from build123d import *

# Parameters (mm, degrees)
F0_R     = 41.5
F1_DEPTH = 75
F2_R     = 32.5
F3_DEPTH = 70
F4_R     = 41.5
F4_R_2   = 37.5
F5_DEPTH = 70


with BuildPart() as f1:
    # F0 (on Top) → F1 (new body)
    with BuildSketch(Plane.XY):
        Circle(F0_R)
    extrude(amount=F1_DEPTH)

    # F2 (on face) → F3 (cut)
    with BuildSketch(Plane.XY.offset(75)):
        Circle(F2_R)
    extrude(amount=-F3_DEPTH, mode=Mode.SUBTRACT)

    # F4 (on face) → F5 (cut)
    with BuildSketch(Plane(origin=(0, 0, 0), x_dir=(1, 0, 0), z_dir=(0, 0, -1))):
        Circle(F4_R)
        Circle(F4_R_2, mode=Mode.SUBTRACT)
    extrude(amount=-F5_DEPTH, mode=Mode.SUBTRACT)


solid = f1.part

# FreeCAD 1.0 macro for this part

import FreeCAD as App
import Part
import Sketcher
from FreeCAD import Vector

doc = App.newDocument("Part")
body = doc.addObject("PartDesign::Body", "Body")

sketch1 = doc.addObject("Sketcher::SketchObject", "Sketch")
body.addObject(sketch1)
sketch1.AttachmentSupport = (doc.XY_Plane, [""])
sketch1.MapMode = "FlatFace"
sketch1.addGeometry(Part.Circle(Vector(0, 0, 0), Vector(0, 0, 1), 41.5), False)
sketch1.addConstraint([
    Sketcher.Constraint("Coincident", 0, 3, -1, 1),
    Sketcher.Constraint("Diameter", 0, 83.0),
])
pad1 = doc.addObject("PartDesign::Pad", "Pad")
body.addObject(pad1)
pad1.Profile = sketch1
pad1.Length = 75

sketch2 = doc.addObject("Sketcher::SketchObject", "Sketch001")
body.addObject(sketch2)
sketch2.AttachmentSupport = (doc.XY_Plane, [""])
sketch2.MapMode = "FlatFace"
sketch2.AttachmentOffset = App.Placement(Vector(0, 0, 75), App.Rotation())
sketch2.addGeometry(Part.Circle(Vector(0, 0, 0), Vector(0, 0, 1), 32.5), False)
sketch2.addConstraint([
    Sketcher.Constraint("Coincident", 0, 3, -1, 1),
    Sketcher.Constraint("Diameter", 0, 65.0),
])
pocket1 = doc.addObject("PartDesign::Pocket", "Pocket")
body.addObject(pocket1)
pocket1.Profile = sketch2
pocket1.Length = 70

sketch3 = doc.addObject("Sketcher::SketchObject", "Sketch002")
body.addObject(sketch3)
sketch3.AttachmentSupport = (doc.XY_Plane, [""])
sketch3.MapMode = "FlatFace"
sketch3.addGeometry([
    Part.Circle(Vector(0, 0, 0), Vector(0, 0, 1), 41.5),
    Part.Circle(Vector(0, 0, 0), Vector(0, 0, 1), 37.5),
], False)
sketch3.addConstraint([
    Sketcher.Constraint("Coincident", 0, 3, -1, 1),
    Sketcher.Constraint("Coincident", 1, 3, -1, 1),
    Sketcher.Constraint("Diameter", 0, 83.0),
    Sketcher.Constraint("Diameter", 1, 75.0),
])
pocket2 = doc.addObject("PartDesign::Pocket", "Pocket001")
body.addObject(pocket2)
pocket2.Profile = sketch3
pocket2.Length = 70
pocket2.Reversed = True

doc.recompute()
